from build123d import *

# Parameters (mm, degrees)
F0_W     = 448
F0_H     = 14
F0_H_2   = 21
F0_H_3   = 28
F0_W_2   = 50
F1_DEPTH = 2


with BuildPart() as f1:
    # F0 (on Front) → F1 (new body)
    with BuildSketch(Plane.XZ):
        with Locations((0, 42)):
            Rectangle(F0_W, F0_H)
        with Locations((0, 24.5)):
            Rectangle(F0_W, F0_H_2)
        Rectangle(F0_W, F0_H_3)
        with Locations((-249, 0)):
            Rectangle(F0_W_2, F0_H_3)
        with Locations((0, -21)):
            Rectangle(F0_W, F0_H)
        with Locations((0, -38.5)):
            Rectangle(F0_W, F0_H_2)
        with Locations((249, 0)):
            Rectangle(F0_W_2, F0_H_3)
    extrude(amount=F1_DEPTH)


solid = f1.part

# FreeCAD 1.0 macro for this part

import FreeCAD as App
import Part
import Sketcher
Q = App.Units.Quantity

doc = App.newDocument("Part")
body = doc.addObject("PartDesign::Body", "Body")

sketch1 = body.newObject("Sketcher::SketchObject", "Sketch")
sketch1.AttachmentSupport = (doc.getObject("XZ_Plane"), [""])
sketch1.MapMode = "FlatFace"
sketch1.addGeometry([
    Part.LineSegment(App.Vector(-224, 49, 0), App.Vector(-224, 14, 0)),
    Part.LineSegment(App.Vector(-224, 14, 0), App.Vector(-274, 14, 0)),
    Part.LineSegment(App.Vector(-274, 14, 0), App.Vector(-274, -14, 0)),
    Part.LineSegment(App.Vector(-274, -14, 0), App.Vector(-224, -14, 0)),
    Part.LineSegment(App.Vector(-224, -14, 0), App.Vector(-224, -49, 0)),
    Part.LineSegment(App.Vector(-224, -49, 0), App.Vector(224, -49, 0)),
    Part.LineSegment(App.Vector(224, -49, 0), App.Vector(224, -14, 0)),
    Part.LineSegment(App.Vector(224, -14, 0), App.Vector(274, -14, 0)),
    Part.LineSegment(App.Vector(274, -14, 0), App.Vector(274, 14, 0)),
    Part.LineSegment(App.Vector(274, 14, 0), App.Vector(224, 14, 0)),
    Part.LineSegment(App.Vector(224, 14, 0), App.Vector(224, 49, 0)),
    Part.LineSegment(App.Vector(224, 49, 0), App.Vector(-224, 49, 0)),
], False)
sketch1.addConstraint([
    Sketcher.Constraint("Coincident", 0, 2, 1, 1),
    Sketcher.Constraint("Coincident", 1, 2, 2, 1),
    Sketcher.Constraint("Coincident", 2, 2, 3, 1),
    Sketcher.Constraint("Coincident", 3, 2, 4, 1),
    Sketcher.Constraint("Coincident", 4, 2, 5, 1),
    Sketcher.Constraint("Coincident", 5, 2, 6, 1),
    Sketcher.Constraint("Coincident", 6, 2, 7, 1),
    Sketcher.Constraint("Coincident", 7, 2, 8, 1),
    Sketcher.Constraint("Coincident", 8, 2, 9, 1),
    Sketcher.Constraint("Coincident", 9, 2, 10, 1),
    Sketcher.Constraint("Coincident", 10, 2, 11, 1),
    Sketcher.Constraint("Coincident", 11, 2, 0, 1),
    Sketcher.Constraint("Vertical", 0),
    Sketcher.Constraint("Horizontal", 1),
    Sketcher.Constraint("Vertical", 2),
    Sketcher.Constraint("Horizontal", 3),
    Sketcher.Constraint("Vertical", 4),
    Sketcher.Constraint("Horizontal", 5),
    Sketcher.Constraint("Vertical", 6),
    Sketcher.Constraint("Horizontal", 7),
    Sketcher.Constraint("Vertical", 8),
    Sketcher.Constraint("Horizontal", 9),
    Sketcher.Constraint("Vertical", 10),
    Sketcher.Constraint("Horizontal", 11),
    Sketcher.Constraint("Symmetric", 0, 2, 6, 2, -1, 1),
    Sketcher.Constraint("Symmetric", 2, 2, 8, 2, -1, 1),
    Sketcher.Constraint("Symmetric", 4, 2, 10, 2, -1, 1),
    Sketcher.Constraint("Symmetric", 3, 2, 6, 2, -2),
    Sketcher.Constraint("DistanceX", 1, 2, 1, 1, Q("50 mm")),
    Sketcher.Constraint("DistanceX", 5, 1, 5, 2, Q("448 mm")),
    Sketcher.Constraint("DistanceY", 0, 2, 0, 1, Q("35 mm")),
    Sketcher.Constraint("DistanceY", 2, 2, 2, 1, Q("28 mm")),
])
pad1 = body.newObject("PartDesign::Pad", "Pad")
pad1.Profile = sketch1
pad1.Length = 2

doc.recompute()
